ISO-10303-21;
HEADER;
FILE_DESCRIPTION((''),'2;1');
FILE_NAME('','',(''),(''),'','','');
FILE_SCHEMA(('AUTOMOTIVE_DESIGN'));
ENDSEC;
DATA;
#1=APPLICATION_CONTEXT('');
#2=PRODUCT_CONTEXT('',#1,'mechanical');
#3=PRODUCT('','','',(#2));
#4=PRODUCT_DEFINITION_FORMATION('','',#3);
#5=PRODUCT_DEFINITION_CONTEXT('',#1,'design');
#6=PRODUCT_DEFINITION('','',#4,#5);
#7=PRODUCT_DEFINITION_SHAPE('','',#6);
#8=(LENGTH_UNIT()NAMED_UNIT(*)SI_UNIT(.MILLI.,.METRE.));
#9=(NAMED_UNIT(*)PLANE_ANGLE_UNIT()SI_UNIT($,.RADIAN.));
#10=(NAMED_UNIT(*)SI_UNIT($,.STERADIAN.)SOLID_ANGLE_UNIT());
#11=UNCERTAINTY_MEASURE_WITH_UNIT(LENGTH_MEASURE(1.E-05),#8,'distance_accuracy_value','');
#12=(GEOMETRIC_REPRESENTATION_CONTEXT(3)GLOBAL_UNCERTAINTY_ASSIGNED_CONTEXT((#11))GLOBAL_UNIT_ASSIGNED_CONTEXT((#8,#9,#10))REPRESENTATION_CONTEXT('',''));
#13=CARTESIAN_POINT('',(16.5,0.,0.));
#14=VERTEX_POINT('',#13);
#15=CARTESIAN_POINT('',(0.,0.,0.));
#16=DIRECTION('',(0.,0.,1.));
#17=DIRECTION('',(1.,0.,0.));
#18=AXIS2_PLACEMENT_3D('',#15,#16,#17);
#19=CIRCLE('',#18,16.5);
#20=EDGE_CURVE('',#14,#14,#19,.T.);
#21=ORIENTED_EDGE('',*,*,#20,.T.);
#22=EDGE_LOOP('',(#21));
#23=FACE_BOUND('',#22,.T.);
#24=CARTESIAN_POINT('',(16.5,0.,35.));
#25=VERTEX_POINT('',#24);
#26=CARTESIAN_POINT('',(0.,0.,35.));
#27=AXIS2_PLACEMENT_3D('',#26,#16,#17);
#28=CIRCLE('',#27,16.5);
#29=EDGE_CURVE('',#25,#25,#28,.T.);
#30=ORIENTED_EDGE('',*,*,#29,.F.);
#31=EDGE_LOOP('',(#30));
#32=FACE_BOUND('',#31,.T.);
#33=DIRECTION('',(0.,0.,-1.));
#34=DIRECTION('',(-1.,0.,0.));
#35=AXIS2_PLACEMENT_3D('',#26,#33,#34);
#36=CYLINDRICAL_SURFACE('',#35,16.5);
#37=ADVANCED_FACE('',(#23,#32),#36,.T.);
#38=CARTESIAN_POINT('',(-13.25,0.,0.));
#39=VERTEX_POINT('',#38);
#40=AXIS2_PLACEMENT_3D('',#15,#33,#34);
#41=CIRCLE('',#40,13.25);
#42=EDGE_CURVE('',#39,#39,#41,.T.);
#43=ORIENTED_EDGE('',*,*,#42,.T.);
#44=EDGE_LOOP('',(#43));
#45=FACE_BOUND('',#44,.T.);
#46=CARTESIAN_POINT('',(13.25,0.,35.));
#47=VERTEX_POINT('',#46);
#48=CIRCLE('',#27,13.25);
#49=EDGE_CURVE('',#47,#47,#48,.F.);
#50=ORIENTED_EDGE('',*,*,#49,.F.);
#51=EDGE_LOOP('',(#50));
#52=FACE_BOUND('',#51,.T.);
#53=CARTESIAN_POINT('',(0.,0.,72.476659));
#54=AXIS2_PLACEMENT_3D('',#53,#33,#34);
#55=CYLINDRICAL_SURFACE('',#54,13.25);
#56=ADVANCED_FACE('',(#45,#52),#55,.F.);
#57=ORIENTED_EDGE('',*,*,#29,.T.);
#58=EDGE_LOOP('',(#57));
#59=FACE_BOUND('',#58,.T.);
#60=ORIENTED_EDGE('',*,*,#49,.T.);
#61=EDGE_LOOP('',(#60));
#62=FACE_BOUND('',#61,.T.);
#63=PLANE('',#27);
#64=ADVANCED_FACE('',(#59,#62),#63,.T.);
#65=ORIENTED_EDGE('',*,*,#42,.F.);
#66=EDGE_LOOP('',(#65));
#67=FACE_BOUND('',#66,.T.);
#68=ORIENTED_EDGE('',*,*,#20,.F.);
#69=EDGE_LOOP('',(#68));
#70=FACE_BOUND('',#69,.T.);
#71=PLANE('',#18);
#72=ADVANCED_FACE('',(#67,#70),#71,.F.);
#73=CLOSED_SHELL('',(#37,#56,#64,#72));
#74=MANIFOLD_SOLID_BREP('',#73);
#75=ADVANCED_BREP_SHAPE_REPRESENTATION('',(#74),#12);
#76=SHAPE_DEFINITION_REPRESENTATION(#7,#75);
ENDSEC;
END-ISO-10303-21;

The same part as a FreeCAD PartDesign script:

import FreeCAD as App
import Part
import Sketcher

V = App.Vector

doc = App.newDocument("Part")
body = doc.addObject("PartDesign::Body", "Body")

sketch1 = body.newObject("Sketcher::SketchObject", "Sketch")
sketch1.AttachmentSupport = (doc.getObject("XY_Plane"), [""])
sketch1.MapMode = "FlatFace"
sketch1.addGeometry(Part.Circle(V(0, 0, 0), V(0, 0, 1), 16.5), False)
sketch1.addConstraint(Sketcher.Constraint("Coincident", 0, 3, -1, 1))
sketch1.addConstraint(Sketcher.Constraint("Diameter", 0, 33.0))
pad1 = body.newObject("PartDesign::Pad", "Pad")
pad1.Profile = sketch1
pad1.Length = 35

sketch2 = body.newObject("Sketcher::SketchObject", "Sketch001")
sketch2.AttachmentSupport = (doc.getObject("XY_Plane"), [""])
sketch2.MapMode = "FlatFace"
sketch2.addGeometry(Part.Circle(V(0, 0, 0), V(0, 0, 1), 13.25), False)
sketch2.addConstraint(Sketcher.Constraint("Coincident", 0, 3, -1, 1))
sketch2.addConstraint(Sketcher.Constraint("Diameter", 0, 26.5))
pocket1 = body.newObject("PartDesign::Pocket", "Pocket")
pocket1.Profile = sketch2
pocket1.Length = 35
pocket1.Reversed = True

doc.recompute()
